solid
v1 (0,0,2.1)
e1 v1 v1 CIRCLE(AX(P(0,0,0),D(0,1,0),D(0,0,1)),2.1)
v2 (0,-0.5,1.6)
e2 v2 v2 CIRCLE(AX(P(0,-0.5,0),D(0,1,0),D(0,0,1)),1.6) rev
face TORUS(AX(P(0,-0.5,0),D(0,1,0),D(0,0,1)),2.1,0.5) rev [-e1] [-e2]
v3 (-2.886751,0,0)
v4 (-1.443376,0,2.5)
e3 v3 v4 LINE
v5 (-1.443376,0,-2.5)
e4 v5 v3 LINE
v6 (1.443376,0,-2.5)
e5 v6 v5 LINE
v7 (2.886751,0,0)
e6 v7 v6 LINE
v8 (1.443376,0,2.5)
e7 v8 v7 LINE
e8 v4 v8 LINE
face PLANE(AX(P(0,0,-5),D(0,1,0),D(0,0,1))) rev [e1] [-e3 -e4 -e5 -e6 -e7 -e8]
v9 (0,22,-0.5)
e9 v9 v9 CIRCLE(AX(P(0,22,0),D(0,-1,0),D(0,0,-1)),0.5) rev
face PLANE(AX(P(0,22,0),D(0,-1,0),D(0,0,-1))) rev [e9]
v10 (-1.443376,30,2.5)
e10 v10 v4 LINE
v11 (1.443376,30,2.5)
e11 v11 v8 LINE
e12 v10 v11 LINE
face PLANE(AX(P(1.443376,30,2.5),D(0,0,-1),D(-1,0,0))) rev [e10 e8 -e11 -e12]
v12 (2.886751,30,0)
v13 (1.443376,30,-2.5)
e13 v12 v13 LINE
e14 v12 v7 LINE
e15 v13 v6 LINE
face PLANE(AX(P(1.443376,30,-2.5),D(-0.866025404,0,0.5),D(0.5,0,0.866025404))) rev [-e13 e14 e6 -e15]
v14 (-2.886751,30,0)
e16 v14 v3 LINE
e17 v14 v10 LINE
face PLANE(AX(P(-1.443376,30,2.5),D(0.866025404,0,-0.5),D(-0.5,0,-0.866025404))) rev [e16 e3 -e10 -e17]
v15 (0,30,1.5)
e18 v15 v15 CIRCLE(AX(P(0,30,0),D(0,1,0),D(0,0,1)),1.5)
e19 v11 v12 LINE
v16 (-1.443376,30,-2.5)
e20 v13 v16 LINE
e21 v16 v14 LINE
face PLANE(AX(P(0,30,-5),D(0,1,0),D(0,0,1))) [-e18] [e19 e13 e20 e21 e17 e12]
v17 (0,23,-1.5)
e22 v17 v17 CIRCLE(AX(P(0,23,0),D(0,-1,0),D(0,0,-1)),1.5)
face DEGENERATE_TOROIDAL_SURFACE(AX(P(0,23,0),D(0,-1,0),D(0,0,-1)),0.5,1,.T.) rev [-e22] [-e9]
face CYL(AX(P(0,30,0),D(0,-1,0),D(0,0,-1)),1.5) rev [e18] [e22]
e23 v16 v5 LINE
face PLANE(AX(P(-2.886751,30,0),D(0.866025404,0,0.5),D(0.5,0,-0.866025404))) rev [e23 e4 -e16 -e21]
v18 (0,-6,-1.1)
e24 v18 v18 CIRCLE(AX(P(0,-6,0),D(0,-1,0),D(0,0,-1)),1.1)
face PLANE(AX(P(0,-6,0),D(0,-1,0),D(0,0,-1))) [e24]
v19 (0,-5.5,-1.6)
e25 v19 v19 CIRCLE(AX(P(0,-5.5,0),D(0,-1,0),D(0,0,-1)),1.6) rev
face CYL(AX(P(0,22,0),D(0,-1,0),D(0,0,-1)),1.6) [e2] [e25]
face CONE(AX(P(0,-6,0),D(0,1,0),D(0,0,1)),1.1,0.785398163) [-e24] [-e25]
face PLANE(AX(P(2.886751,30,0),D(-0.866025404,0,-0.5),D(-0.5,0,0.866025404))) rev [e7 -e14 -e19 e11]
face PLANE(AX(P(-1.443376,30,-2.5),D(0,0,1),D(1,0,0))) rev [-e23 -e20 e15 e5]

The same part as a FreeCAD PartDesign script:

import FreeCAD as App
import Part
import Sketcher
from FreeCAD import Vector
Q = App.Units.Quantity


def edges_at(feature, points):
    """Names of the edges that pass closest to the given points."""
    edges = feature.Shape.Edges
    near = lambda p: min(range(len(edges)), key=lambda i: edges[i].distToShape(Part.Vertex(*p))[0])
    return sorted({f"Edge{near(p) + 1}" for p in points})


def add_polygon(sketch, points):
    """Adds a closed chain of lines whose ends are joined by coincident constraints."""
    first, n = sketch.GeometryCount, len(points)
    for a, b in zip(points, points[1:] + points[:1]):
        sketch.addGeometry(Part.LineSegment(App.Vector(*a, 0), App.Vector(*b, 0)), False)
    for i in range(n):
        sketch.addConstraint(Sketcher.Constraint("Coincident", first + i, 2, first + (i + 1) % n, 1))

doc = App.newDocument("Part")
params = doc.addObject("Spreadsheet::Sheet", "Params")
for row, (alias, value) in enumerate([
    ("sketch1_diameter", "3 mm"),
    ("pad1_length", "30 mm"),
    ("sketch2_diameter", "3.2 mm"),
    ("pad2_length", "6 mm"),
    ("pad2_length2", "22 mm"),
    ("chamfer_size", "0.5 mm"),
    ("fillet_radius", "0.5 mm"),
    ("fillet2_radius", "1 mm"),
], start=1):
    params.set(f"A{row}", alias)
    params.set(f"B{row}", "=" + value)
    params.setAlias(f"B{row}", alias)

body = doc.addObject("PartDesign::Body", "Body")

# Sketch on XZ plane
sketch1 = doc.addObject("Sketcher::SketchObject", "Sketch")
body.addObject(sketch1)
sketch1.AttachmentSupport = (doc.XZ_Plane, [""])
sketch1.MapMode = "FlatFace"
add_polygon(sketch1, [(1.4, -2.5), (-1.4, -2.5), (-2.9, 0), (-1.4, 2.5), (1.4, 2.5), (2.9, 0)])  # lines 0-5
sketch1.addGeometry(Part.Circle(Vector(0, 0, 0), Vector(0, 0, 1), 1.5), False)  # 6
sketch1.addConstraint(Sketcher.Constraint("Horizontal", 0))
sketch1.addConstraint(Sketcher.Constraint("Horizontal", 3))
sketch1.addConstraint(Sketcher.Constraint("Coincident", 6, 3, -1, 1))
sketch1.addConstraint(Sketcher.Constraint("Symmetric", 0, 2, 3, 2, -1, 1))
sketch1.addConstraint(Sketcher.Constraint("Symmetric", 1, 2, 4, 2, -1, 1))
sketch1.addConstraint(Sketcher.Constraint("PointOnObject", 1, 2, -1))
sketch1.addConstraint(Sketcher.Constraint("Parallel", 2, 5))
sketch1.addConstraint(Sketcher.Constraint("Vertical", 0, 2, 2, 2))
sketch1.addConstraint(Sketcher.Constraint("Diameter", 6, 3.0))
sketch1.addConstraint(Sketcher.Constraint("Angle", 1, Q("120 deg")))
sketch1.addConstraint(Sketcher.Constraint("DistanceY", 0, 2, 2, 2, 5.0))
sketch1.addConstraint(Sketcher.Constraint("DistanceX", 0, 2, 0, 1, 2.886751))
sketch1.setExpression("Constraints[14]", "Params.sketch1_diameter")
pad1 = doc.addObject("PartDesign::Pad", "Pad")
body.addObject(pad1)
pad1.Profile = sketch1
pad1.setExpression("Length", "Params.pad1_length")
pad1.Reversed = True

# Sketch on XZ plane
sketch2 = doc.addObject("Sketcher::SketchObject", "Sketch001")
body.addObject(sketch2)
sketch2.AttachmentSupport = (doc.XZ_Plane, [""])
sketch2.MapMode = "FlatFace"
sketch2.addGeometry(Part.Circle(Vector(0, 0, 0), Vector(0, 0, 1), 1.6), False)
sketch2.addConstraint(Sketcher.Constraint("Coincident", 0, 3, -1, 1))
sketch2.addConstraint(Sketcher.Constraint("Diameter", 0, 3.2))
sketch2.setExpression("Constraints[1]", "Params.sketch2_diameter")
pad2 = doc.addObject("PartDesign::Pad", "Pad001")
body.addObject(pad2)
pad2.Profile = sketch2
pad2.Type = "TwoLengths"
pad2.setExpression("Length", "Params.pad2_length")
pad2.setExpression("Length2", "Params.pad2_length2")
doc.recompute()

chamfer = doc.addObject("PartDesign::Chamfer", "Chamfer")
body.addObject(chamfer)
chamfer.Base = (pad2, edges_at(pad2, [(0, -6, 1.6)]))
chamfer.setExpression("Size", "Params.chamfer_size")
doc.recompute()

fillet = doc.addObject("PartDesign::Fillet", "Fillet")
body.addObject(fillet)
fillet.Base = (chamfer, edges_at(chamfer, [(0, 0, 1.6)]))
fillet.setExpression("Radius", "Params.fillet_radius")
doc.recompute()

fillet2 = doc.addObject("PartDesign::Fillet", "Fillet001")
body.addObject(fillet2)
fillet2.Base = (fillet, edges_at(fillet, [(0, 22, -1.5)]))
fillet2.setExpression("Radius", "Params.fillet2_radius")

doc.recompute()
